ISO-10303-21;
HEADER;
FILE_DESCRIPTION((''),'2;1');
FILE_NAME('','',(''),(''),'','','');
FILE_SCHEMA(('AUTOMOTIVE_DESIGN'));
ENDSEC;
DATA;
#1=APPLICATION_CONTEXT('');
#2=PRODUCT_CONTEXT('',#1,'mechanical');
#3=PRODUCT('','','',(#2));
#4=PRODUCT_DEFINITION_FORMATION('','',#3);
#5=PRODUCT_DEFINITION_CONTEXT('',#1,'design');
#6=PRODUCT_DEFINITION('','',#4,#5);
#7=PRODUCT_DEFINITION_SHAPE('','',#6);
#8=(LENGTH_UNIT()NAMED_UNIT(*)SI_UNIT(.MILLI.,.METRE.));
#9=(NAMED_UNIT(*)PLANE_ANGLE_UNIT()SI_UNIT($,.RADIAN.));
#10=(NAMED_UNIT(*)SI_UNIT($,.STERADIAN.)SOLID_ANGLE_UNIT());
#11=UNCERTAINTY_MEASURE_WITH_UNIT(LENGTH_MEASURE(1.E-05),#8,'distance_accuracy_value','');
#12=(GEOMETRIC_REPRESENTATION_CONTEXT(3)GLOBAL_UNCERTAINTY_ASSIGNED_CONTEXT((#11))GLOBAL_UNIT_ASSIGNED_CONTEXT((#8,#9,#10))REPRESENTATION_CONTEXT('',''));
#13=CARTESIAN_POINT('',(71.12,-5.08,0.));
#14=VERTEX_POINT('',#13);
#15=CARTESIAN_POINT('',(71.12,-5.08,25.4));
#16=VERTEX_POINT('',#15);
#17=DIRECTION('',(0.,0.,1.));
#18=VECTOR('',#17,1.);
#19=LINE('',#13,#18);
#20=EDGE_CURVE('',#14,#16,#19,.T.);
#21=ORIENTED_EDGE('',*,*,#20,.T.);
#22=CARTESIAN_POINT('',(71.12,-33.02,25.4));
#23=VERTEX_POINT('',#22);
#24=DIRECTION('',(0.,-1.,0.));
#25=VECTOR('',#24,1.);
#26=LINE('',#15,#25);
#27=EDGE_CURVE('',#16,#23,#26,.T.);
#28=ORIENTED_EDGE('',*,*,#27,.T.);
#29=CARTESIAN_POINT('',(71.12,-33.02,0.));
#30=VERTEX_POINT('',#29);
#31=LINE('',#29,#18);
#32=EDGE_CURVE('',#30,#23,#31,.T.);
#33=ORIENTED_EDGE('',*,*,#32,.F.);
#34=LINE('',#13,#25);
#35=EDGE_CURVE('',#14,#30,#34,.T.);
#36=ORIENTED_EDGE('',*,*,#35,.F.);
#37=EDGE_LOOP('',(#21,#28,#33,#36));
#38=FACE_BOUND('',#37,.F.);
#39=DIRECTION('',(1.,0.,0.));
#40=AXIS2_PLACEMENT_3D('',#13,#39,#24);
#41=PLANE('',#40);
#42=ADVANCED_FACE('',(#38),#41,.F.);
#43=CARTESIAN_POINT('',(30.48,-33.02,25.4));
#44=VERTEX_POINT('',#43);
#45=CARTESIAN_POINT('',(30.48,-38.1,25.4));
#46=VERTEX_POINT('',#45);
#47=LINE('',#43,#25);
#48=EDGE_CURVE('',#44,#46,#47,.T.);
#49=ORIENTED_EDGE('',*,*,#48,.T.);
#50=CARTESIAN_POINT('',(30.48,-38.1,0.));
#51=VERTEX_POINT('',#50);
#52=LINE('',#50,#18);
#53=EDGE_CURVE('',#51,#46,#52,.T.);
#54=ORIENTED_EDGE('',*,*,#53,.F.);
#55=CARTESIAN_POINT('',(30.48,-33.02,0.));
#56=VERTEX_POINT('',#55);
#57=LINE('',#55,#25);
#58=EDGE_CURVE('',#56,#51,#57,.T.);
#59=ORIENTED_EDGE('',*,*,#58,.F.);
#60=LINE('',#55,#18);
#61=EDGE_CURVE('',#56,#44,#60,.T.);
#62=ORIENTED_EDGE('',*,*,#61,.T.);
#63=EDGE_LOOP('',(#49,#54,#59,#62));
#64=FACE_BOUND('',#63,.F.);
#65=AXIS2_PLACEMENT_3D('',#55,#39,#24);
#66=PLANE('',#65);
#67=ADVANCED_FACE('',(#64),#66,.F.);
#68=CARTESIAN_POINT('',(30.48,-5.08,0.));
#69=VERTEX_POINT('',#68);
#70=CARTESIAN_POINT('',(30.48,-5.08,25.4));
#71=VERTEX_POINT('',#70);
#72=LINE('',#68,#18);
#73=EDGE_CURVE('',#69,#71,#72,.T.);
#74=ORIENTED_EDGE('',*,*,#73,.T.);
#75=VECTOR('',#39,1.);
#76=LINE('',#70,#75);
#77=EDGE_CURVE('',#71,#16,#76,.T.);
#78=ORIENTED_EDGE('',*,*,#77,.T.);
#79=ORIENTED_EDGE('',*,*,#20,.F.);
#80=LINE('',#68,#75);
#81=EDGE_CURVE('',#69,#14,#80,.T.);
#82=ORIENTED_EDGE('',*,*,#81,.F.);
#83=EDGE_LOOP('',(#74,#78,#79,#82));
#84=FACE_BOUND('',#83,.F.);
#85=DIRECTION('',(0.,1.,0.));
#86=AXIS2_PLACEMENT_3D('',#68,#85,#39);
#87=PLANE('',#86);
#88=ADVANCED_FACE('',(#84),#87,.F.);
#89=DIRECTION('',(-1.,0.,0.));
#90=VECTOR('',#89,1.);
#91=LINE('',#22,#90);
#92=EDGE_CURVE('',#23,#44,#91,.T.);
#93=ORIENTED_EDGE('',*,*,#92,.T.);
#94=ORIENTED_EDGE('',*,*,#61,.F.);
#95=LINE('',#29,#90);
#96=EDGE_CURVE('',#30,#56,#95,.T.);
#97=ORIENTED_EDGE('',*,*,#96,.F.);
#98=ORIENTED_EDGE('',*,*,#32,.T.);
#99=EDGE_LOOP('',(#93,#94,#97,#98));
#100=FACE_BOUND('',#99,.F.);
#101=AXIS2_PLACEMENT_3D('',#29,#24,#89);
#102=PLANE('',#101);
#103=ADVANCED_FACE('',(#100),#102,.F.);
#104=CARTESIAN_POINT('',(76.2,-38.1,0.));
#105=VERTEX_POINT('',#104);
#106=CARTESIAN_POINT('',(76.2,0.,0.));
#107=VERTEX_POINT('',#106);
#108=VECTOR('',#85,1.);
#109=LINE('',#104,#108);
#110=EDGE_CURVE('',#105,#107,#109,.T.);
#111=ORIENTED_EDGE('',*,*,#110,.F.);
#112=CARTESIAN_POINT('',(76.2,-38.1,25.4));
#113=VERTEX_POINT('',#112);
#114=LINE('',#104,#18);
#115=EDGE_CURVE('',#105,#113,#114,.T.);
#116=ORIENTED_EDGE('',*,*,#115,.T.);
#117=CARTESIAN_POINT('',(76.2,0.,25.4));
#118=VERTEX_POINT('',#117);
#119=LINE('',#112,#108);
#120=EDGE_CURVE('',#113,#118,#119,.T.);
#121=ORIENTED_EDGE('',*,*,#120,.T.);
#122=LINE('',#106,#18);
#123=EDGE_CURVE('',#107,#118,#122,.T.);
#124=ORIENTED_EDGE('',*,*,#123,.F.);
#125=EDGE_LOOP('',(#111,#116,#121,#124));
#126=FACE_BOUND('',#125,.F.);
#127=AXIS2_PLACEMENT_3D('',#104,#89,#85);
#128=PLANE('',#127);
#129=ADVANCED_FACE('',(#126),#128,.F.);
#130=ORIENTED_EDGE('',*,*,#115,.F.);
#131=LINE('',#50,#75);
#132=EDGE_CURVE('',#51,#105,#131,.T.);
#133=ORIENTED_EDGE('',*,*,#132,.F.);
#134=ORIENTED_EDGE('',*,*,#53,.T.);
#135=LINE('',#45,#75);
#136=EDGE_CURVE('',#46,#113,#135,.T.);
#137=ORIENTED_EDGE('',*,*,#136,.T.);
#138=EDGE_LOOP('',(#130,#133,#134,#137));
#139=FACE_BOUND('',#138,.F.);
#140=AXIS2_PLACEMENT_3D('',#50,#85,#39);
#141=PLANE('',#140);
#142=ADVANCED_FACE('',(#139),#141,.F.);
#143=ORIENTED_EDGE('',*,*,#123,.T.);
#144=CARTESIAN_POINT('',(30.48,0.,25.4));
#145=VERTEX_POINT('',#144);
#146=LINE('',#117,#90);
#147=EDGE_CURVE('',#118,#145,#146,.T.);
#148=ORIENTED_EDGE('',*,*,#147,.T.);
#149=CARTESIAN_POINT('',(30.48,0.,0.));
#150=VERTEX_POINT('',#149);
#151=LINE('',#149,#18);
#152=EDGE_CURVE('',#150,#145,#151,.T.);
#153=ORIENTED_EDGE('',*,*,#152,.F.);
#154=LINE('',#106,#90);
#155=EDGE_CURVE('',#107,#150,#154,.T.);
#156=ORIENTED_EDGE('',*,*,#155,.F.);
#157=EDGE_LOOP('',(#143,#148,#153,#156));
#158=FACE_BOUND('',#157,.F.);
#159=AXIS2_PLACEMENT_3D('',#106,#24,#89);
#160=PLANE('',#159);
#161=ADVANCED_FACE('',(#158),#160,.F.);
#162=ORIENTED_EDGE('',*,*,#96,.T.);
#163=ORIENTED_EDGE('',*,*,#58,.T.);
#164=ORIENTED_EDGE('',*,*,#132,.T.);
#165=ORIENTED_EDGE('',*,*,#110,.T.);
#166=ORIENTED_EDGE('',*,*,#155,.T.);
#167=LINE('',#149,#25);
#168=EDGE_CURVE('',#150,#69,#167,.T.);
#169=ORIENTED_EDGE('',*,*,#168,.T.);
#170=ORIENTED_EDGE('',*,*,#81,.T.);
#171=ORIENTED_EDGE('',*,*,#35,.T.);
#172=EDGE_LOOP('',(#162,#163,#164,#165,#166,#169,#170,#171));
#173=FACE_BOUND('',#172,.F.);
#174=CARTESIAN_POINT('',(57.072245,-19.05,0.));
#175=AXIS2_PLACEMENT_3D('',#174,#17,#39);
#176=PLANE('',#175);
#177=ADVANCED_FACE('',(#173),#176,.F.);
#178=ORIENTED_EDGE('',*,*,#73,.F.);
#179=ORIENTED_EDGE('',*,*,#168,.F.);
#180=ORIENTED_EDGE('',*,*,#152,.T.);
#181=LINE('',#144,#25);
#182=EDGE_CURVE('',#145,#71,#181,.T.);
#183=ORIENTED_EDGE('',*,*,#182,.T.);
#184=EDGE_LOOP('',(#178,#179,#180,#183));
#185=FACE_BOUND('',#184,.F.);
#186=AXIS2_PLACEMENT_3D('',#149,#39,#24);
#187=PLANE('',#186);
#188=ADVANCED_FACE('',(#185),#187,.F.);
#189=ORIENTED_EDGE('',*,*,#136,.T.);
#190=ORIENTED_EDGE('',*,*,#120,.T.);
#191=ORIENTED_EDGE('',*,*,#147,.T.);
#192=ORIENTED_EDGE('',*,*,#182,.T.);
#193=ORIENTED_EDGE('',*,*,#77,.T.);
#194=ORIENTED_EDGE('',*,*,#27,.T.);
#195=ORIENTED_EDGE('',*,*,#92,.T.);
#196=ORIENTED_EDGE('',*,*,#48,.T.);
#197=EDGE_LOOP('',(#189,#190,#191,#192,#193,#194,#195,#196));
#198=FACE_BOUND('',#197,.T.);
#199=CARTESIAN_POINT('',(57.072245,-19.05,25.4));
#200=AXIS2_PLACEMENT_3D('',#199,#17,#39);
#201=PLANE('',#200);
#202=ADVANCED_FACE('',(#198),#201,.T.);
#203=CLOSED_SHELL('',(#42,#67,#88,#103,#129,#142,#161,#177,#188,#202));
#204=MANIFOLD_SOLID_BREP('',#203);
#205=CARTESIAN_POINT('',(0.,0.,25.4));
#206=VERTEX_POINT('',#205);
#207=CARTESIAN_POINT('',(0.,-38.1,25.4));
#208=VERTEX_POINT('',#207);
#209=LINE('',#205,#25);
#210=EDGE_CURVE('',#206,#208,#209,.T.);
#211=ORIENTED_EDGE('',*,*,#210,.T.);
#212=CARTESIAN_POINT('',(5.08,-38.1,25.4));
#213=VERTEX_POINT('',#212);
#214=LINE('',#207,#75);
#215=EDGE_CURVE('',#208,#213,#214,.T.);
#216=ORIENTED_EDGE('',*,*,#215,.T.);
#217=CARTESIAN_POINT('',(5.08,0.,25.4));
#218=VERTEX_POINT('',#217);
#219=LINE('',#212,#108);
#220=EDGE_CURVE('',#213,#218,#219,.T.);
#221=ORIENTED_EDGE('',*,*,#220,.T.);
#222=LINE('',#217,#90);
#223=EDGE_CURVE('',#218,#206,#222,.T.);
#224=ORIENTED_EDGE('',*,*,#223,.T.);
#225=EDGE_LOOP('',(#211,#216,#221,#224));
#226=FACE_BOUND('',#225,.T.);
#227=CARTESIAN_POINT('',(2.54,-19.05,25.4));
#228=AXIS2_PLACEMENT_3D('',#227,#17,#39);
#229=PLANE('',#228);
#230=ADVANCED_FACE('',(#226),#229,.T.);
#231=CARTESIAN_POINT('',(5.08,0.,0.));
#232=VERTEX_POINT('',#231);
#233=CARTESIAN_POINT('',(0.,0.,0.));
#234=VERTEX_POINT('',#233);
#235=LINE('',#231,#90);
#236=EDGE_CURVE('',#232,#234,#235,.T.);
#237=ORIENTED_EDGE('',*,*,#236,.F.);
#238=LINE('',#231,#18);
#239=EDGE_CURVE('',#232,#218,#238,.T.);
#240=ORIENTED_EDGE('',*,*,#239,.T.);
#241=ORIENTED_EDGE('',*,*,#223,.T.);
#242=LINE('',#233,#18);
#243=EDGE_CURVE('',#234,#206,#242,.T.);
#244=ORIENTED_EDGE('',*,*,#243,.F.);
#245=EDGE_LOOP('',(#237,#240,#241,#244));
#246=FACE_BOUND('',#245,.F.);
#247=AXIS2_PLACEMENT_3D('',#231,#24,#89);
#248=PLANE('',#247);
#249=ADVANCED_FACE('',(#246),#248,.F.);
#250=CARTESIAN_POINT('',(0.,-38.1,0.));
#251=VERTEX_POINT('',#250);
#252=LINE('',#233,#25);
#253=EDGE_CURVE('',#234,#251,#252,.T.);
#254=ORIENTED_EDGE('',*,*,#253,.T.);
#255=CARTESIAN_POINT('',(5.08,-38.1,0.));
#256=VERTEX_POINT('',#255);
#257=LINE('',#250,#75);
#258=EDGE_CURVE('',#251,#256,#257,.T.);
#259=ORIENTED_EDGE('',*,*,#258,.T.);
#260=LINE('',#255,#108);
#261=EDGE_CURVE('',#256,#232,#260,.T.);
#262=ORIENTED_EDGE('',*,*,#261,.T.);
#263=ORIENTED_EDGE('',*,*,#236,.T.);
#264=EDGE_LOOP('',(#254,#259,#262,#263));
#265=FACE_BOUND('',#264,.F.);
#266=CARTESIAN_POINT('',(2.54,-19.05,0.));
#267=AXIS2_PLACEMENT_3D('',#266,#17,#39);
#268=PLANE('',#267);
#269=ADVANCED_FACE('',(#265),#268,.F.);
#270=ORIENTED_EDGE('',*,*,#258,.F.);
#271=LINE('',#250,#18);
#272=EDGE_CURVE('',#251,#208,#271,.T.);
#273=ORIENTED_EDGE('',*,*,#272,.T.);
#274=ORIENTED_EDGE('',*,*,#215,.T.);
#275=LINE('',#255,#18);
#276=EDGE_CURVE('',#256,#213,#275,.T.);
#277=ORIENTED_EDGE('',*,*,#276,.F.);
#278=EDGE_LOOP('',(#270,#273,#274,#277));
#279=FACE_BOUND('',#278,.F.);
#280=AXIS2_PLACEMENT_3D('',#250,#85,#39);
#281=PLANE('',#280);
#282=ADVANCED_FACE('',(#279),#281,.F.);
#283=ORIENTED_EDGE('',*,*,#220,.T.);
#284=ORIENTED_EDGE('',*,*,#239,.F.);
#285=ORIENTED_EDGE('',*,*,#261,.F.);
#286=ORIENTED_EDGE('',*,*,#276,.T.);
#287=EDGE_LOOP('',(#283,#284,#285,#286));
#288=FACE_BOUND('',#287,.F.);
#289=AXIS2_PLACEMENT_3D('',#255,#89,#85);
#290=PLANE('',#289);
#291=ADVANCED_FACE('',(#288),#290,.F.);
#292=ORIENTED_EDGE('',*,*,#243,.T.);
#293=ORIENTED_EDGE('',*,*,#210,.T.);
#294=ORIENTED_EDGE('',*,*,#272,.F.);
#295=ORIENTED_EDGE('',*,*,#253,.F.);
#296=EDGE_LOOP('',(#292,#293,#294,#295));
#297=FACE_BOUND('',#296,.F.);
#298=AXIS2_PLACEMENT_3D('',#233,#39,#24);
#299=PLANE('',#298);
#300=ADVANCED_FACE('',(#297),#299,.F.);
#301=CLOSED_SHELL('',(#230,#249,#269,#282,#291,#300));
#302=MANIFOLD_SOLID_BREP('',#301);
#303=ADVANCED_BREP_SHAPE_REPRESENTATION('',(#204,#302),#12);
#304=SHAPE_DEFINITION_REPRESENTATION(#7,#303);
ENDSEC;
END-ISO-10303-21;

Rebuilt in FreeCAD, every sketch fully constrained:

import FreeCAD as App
import Part
import Sketcher
Q = App.Units.Quantity

doc = App.newDocument("Part")
params = doc.addObject("Spreadsheet::Sheet", "Params")
for row, (alias, value) in enumerate([
    ("sketch1_width", "0.2 in"),
    ("sketch1_width2", "1.8 in"),
    ("sketch1_width3", "1.6 in"),
    ("sketch1_height", "1.5 in"),
    ("pad1_length", "1 in"),
], start=1):
    params.set(f"A{row}", alias)
    params.set(f"B{row}", "=" + value)
    params.setAlias(f"B{row}", alias)

body = doc.addObject("PartDesign::Body", "Body")
body.AllowCompound = True

# Sketch on XY plane
sketch1 = body.newObject("Sketcher::SketchObject", "Sketch")
sketch1.AttachmentSupport = (doc.getObject("XY_Plane"), [""])
sketch1.MapMode = "FlatFace"
sketch1.addGeometry(Part.LineSegment(App.Vector(5.08, 0, 0), App.Vector(0, 0, 0)), False)
sketch1.addGeometry(Part.LineSegment(App.Vector(0, 0, 0), App.Vector(0, -38.1, 0)), False)
sketch1.addGeometry(Part.LineSegment(App.Vector(0, -38.1, 0), App.Vector(5.08, -38.1, 0)), False)
sketch1.addGeometry(Part.LineSegment(App.Vector(5.08, -38.1, 0), App.Vector(5.08, 0, 0)), False)
sketch1.addGeometry(Part.LineSegment(App.Vector(76.2, 0, 0), App.Vector(30.48, 0, 0)), False)
sketch1.addGeometry(Part.LineSegment(App.Vector(30.48, 0, 0), App.Vector(30.48, -5.08, 0)), False)
sketch1.addGeometry(Part.LineSegment(App.Vector(30.48, -5.08, 0), App.Vector(71.12, -5.08, 0)), False)
sketch1.addGeometry(Part.LineSegment(App.Vector(71.12, -5.08, 0), App.Vector(71.12, -33.02, 0)), False)
sketch1.addGeometry(Part.LineSegment(App.Vector(71.12, -33.02, 0), App.Vector(30.48, -33.02, 0)), False)
sketch1.addGeometry(Part.LineSegment(App.Vector(30.48, -33.02, 0), App.Vector(30.48, -38.1, 0)), False)
sketch1.addGeometry(Part.LineSegment(App.Vector(30.48, -38.1, 0), App.Vector(76.2, -38.1, 0)), False)
sketch1.addGeometry(Part.LineSegment(App.Vector(76.2, -38.1, 0), App.Vector(76.2, 0, 0)), False)
sketch1.addConstraint(Sketcher.Constraint("Coincident", 0, 2, 1, 1))
sketch1.addConstraint(Sketcher.Constraint("Coincident", 1, 2, 2, 1))
sketch1.addConstraint(Sketcher.Constraint("Coincident", 2, 2, 3, 1))
sketch1.addConstraint(Sketcher.Constraint("Coincident", 3, 2, 0, 1))
sketch1.addConstraint(Sketcher.Constraint("Coincident", 4, 2, 5, 1))
sketch1.addConstraint(Sketcher.Constraint("Coincident", 5, 2, 6, 1))
sketch1.addConstraint(Sketcher.Constraint("Coincident", 6, 2, 7, 1))
sketch1.addConstraint(Sketcher.Constraint("Coincident", 7, 2, 8, 1))
sketch1.addConstraint(Sketcher.Constraint("Coincident", 8, 2, 9, 1))
sketch1.addConstraint(Sketcher.Constraint("Coincident", 9, 2, 10, 1))
sketch1.addConstraint(Sketcher.Constraint("Coincident", 10, 2, 11, 1))
sketch1.addConstraint(Sketcher.Constraint("Coincident", 11, 2, 4, 1))
sketch1.addConstraint(Sketcher.Constraint("Horizontal", 0))
sketch1.addConstraint(Sketcher.Constraint("Vertical", 1))
sketch1.addConstraint(Sketcher.Constraint("Horizontal", 2))
sketch1.addConstraint(Sketcher.Constraint("Vertical", 3))
sketch1.addConstraint(Sketcher.Constraint("Horizontal", 4))
sketch1.addConstraint(Sketcher.Constraint("Vertical", 5))
sketch1.addConstraint(Sketcher.Constraint("Horizontal", 6))
sketch1.addConstraint(Sketcher.Constraint("Vertical", 7))
sketch1.addConstraint(Sketcher.Constraint("Horizontal", 8))
sketch1.addConstraint(Sketcher.Constraint("Vertical", 9))
sketch1.addConstraint(Sketcher.Constraint("Horizontal", 10))
sketch1.addConstraint(Sketcher.Constraint("Vertical", 11))
sketch1.addConstraint(Sketcher.Constraint("Coincident", 0, 2, -1, 1))
sketch1.addConstraint(Sketcher.Constraint("PointOnObject", 4, 2, -1))
sketch1.addConstraint(Sketcher.Constraint("Horizontal", 2, 2, 9, 2))
sketch1.addConstraint(Sketcher.Constraint("Vertical", 5, 2, 8, 2))
sketch1.addConstraint(Sketcher.Constraint("Equal", 2, 5))
sketch1.addConstraint(Sketcher.Constraint("Equal", 5, 9))
sketch1.addConstraint(Sketcher.Constraint("DistanceX", 0, 2, 0, 1, Q("0.2 in")))
sketch1.addConstraint(Sketcher.Constraint("DistanceX", 4, 2, 4, 1, Q("1.8 in")))
sketch1.addConstraint(Sketcher.Constraint("DistanceX", 6, 1, 6, 2, Q("1.6 in")))
sketch1.addConstraint(Sketcher.Constraint("DistanceY", 1, 2, 1, 1, Q("1.5 in")))
sketch1.addConstraint(Sketcher.Constraint("DistanceX", -1, 1, 10, 2, Q("3 in")))
sketch1.setExpression("Constraints[30]", "Params.sketch1_width")
sketch1.setExpression("Constraints[31]", "Params.sketch1_width2")
sketch1.setExpression("Constraints[32]", "Params.sketch1_width3")
sketch1.setExpression("Constraints[33]", "Params.sketch1_height")
pad1 = body.newObject("PartDesign::Pad", "Pad")
pad1.Profile = sketch1
pad1.setExpression("Length", "Params.pad1_length")

doc.recompute()
